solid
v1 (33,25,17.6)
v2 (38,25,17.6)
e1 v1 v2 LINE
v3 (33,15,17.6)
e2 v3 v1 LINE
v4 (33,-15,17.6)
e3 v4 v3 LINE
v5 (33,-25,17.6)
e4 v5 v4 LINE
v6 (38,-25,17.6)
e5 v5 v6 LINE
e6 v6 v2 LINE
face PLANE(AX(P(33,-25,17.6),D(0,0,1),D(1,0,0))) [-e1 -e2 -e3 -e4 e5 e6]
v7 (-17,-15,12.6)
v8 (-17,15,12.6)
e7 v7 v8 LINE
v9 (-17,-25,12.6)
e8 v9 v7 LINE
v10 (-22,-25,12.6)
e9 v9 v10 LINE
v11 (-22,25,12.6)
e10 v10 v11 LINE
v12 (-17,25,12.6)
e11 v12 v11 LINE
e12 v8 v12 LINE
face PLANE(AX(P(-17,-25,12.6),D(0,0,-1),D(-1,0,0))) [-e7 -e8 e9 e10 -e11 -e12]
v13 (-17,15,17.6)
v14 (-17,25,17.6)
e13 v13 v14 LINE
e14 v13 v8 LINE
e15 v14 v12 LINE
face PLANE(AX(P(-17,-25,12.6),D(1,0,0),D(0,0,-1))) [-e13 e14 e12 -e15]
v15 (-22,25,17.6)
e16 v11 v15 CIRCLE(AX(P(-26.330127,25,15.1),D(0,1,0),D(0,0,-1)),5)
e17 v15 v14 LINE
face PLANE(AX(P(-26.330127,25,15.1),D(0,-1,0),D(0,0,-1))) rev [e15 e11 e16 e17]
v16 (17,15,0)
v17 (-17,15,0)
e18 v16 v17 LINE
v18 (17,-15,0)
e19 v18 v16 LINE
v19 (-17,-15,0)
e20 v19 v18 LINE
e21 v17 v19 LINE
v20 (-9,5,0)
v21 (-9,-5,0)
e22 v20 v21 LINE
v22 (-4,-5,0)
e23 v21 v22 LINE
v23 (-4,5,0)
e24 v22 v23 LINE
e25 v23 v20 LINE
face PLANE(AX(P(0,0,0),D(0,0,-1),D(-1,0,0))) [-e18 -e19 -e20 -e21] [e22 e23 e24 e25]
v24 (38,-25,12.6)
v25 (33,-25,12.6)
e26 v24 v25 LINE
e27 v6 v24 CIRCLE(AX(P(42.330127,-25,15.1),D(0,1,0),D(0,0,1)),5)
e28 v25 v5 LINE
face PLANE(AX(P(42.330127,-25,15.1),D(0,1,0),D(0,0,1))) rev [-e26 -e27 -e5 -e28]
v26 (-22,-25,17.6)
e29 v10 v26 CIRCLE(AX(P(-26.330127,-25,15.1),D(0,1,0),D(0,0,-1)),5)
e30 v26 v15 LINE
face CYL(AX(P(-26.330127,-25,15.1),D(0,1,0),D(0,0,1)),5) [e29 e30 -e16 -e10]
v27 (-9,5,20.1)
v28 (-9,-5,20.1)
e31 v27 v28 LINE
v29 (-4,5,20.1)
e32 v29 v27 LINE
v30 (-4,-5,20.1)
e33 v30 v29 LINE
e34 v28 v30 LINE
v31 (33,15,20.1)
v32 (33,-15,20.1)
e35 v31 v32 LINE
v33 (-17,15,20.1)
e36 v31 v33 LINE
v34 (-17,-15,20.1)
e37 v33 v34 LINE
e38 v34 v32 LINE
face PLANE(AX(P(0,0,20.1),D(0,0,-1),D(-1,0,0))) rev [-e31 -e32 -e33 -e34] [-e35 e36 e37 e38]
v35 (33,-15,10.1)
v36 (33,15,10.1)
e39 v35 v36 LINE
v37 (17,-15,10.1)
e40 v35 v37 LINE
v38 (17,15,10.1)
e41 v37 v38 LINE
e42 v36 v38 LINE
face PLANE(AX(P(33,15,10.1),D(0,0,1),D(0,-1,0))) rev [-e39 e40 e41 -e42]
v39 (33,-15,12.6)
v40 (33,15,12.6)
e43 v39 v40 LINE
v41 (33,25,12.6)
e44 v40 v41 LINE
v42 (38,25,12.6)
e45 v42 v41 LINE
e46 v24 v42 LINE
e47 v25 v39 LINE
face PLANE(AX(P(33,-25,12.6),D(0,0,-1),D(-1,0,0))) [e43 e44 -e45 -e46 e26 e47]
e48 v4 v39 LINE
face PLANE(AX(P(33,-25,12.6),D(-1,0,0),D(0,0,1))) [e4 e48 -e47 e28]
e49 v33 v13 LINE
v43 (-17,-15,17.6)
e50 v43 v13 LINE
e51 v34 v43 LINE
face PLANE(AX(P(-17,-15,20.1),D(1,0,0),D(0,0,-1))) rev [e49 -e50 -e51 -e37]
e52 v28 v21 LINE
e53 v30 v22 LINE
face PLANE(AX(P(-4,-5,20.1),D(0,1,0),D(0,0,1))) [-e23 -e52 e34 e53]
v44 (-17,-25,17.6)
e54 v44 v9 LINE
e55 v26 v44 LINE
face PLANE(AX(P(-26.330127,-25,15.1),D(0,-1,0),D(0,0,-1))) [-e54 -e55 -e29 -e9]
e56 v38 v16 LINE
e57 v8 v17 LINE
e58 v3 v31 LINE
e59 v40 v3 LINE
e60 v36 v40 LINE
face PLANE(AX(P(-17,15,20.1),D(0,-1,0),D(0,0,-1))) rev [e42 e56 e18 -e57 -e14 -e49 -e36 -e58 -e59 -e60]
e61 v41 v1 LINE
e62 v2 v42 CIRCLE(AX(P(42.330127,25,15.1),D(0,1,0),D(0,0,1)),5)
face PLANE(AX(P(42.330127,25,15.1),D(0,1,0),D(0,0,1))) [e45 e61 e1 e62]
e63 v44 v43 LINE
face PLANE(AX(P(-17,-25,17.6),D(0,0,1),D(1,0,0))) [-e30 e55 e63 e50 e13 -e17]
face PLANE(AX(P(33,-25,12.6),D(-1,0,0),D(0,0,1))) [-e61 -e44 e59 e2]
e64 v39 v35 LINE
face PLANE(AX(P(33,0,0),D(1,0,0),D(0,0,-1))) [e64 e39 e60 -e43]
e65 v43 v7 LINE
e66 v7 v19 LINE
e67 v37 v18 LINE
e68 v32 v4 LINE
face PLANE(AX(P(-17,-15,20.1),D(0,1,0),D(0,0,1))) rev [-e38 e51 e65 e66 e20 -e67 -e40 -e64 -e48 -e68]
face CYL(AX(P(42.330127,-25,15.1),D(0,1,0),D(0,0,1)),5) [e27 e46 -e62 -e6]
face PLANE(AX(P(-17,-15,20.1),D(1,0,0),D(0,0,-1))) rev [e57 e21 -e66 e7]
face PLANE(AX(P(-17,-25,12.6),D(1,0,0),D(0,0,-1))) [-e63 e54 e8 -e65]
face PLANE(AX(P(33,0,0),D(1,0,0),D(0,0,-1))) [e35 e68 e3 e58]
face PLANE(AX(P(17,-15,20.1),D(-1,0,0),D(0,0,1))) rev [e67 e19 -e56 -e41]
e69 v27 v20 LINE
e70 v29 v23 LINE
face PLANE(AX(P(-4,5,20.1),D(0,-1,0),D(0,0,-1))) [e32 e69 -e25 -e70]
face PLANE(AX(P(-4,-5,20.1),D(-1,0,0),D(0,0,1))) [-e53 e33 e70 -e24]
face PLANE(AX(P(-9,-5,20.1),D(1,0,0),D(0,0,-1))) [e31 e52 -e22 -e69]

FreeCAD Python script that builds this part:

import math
import FreeCAD as App
import Part
import Sketcher

V = App.Vector
Q = App.Units.Quantity


def add_polygon(sketch, points):
    """Adds a closed chain of lines whose ends are joined by coincident constraints."""
    first, n = sketch.GeometryCount, len(points)
    for a, b in zip(points, points[1:] + points[:1]):
        sketch.addGeometry(Part.LineSegment(App.Vector(*a, 0), App.Vector(*b, 0)), False)
    for i in range(n):
        sketch.addConstraint(Sketcher.Constraint("Coincident", first + i, 2, first + (i + 1) % n, 1))

doc = App.newDocument("Part")
body = doc.addObject("PartDesign::Body", "Body")

# Sketch on XY plane
sketch1 = body.newObject("Sketcher::SketchObject", "Sketch")
sketch1.AttachmentSupport = (doc.getObject("XY_Plane"), [""])
sketch1.MapMode = "FlatFace"
add_polygon(sketch1, [(-17, 15), (-17, -15), (17, -15), (17, 15)])  # lines 0-3
add_polygon(sketch1, [(-4, -5), (-9, -5), (-9, 5), (-4, 5)])  # lines 4-7
sketch1.addConstraint(Sketcher.Constraint("Vertical", 0))
sketch1.addConstraint(Sketcher.Constraint("Horizontal", 1))
sketch1.addConstraint(Sketcher.Constraint("Vertical", 2))
sketch1.addConstraint(Sketcher.Constraint("Horizontal", 3))
sketch1.addConstraint(Sketcher.Constraint("Horizontal", 4))
sketch1.addConstraint(Sketcher.Constraint("Vertical", 5))
sketch1.addConstraint(Sketcher.Constraint("Horizontal", 6))
sketch1.addConstraint(Sketcher.Constraint("Vertical", 7))
sketch1.addConstraint(Sketcher.Constraint("Symmetric", 0, 2, 2, 2, -1, 1))
sketch1.addConstraint(Sketcher.Constraint("DistanceX", 1, 1, 1, 2, Q("34 mm")))
sketch1.addConstraint(Sketcher.Constraint("DistanceX", 4, 2, 4, 1, Q("5 mm")))
sketch1.addConstraint(Sketcher.Constraint("DistanceY", 0, 2, 0, 1, Q("30 mm")))
sketch1.addConstraint(Sketcher.Constraint("DistanceY", 5, 1, 5, 2, Q("10 mm")))
sketch1.addConstraint(Sketcher.Constraint("DistanceX", 4, 2, -1, 1, Q("9 mm")))
sketch1.addConstraint(Sketcher.Constraint("DistanceY", 4, 2, -1, 1, Q("5 mm")))
pad1 = body.newObject("PartDesign::Pad", "Pad")
pad1.Profile = sketch1
pad1.Length = 20.1

# Sketch on YZ plane
sketch2 = body.newObject("Sketcher::SketchObject", "Sketch001")
sketch2.AttachmentSupport = (doc.getObject("YZ_Plane"), [""])
sketch2.MapMode = "FlatFace"
sketch2.AttachmentOffset = App.Placement(V(0, 0, 17), App.Rotation())
add_polygon(sketch2, [(15, 20), (-15, 20), (-15, 10), (15, 10)])  # lines 0-3
sketch2.addConstraint(Sketcher.Constraint("Horizontal", 0))
sketch2.addConstraint(Sketcher.Constraint("Vertical", 1))
sketch2.addConstraint(Sketcher.Constraint("Horizontal", 2))
sketch2.addConstraint(Sketcher.Constraint("Vertical", 3))
sketch2.addConstraint(Sketcher.Constraint("DistanceX", 0, 2, 0, 1, Q("30 mm")))
sketch2.addConstraint(Sketcher.Constraint("DistanceY", 1, 2, 1, 1, Q("10 mm")))
sketch2.addConstraint(Sketcher.Constraint("DistanceX", 0, 2, -1, 1, Q("15 mm")))
sketch2.addConstraint(Sketcher.Constraint("DistanceY", -1, 1, 0, 2, Q("20.1 mm")))
pad2 = body.newObject("PartDesign::Pad", "Pad001")
pad2.Profile = sketch2
pad2.Length = 16

# Sketch on XZ plane
sketch3 = body.newObject("Sketcher::SketchObject", "Sketch002")
sketch3.AttachmentSupport = (doc.getObject("XZ_Plane"), [""])
sketch3.MapMode = "FlatFace"
sketch3.AttachmentOffset = App.Placement(V(0, 0, -25), App.Rotation())
sketch3.addGeometry(Part.LineSegment(V(38, 13, 0), V(33, 13, 0)), False)
sketch3.addGeometry(Part.LineSegment(V(33, 13, 0), V(33, 18, 0)), False)
sketch3.addGeometry(Part.LineSegment(V(33, 18, 0), V(38, 18, 0)), False)
sketch3.addGeometry(Part.ArcOfCircle(Part.Circle(V(42, 15, 0), V(0, 0, 1), 5), math.radians(-150), math.radians(150)), False)
sketch3.addGeometry(Part.LineSegment(V(-17, 18, 0), V(-17, 13, 0)), False)
sketch3.addGeometry(Part.LineSegment(V(-17, 13, 0), V(-22, 13, 0)), False)
sketch3.addGeometry(Part.ArcOfCircle(Part.Circle(V(-26, 15, 0), V(0, 0, 1), 5), math.radians(30), math.radians(330)), False)
sketch3.addGeometry(Part.LineSegment(V(-22, 18, 0), V(-17, 18, 0)), False)
sketch3.addConstraint(Sketcher.Constraint("Coincident", 0, 2, 1, 1))
sketch3.addConstraint(Sketcher.Constraint("Coincident", 1, 2, 2, 1))
sketch3.addConstraint(Sketcher.Constraint("Coincident", 2, 2, 3, 2))
sketch3.addConstraint(Sketcher.Constraint("Coincident", 3, 1, 0, 1))
sketch3.addConstraint(Sketcher.Constraint("Coincident", 4, 2, 5, 1))
sketch3.addConstraint(Sketcher.Constraint("Coincident", 5, 2, 6, 2))
sketch3.addConstraint(Sketcher.Constraint("Coincident", 6, 1, 7, 1))
sketch3.addConstraint(Sketcher.Constraint("Coincident", 7, 2, 4, 1))
sketch3.addConstraint(Sketcher.Constraint("Horizontal", 0))
sketch3.addConstraint(Sketcher.Constraint("Vertical", 1))
sketch3.addConstraint(Sketcher.Constraint("Horizontal", 2))
sketch3.addConstraint(Sketcher.Constraint("Vertical", 4))
sketch3.addConstraint(Sketcher.Constraint("Horizontal", 5))
sketch3.addConstraint(Sketcher.Constraint("Horizontal", 7))
sketch3.addConstraint(Sketcher.Constraint("Equal", 3, 6))
sketch3.addConstraint(Sketcher.Constraint("Horizontal", 3, 3, 6, 3))
sketch3.addConstraint(Sketcher.Constraint("Horizontal", 3, 1, 4, 2))
sketch3.addConstraint(Sketcher.Constraint("Horizontal", 2, 2, 6, 1))
sketch3.addConstraint(Sketcher.Constraint("Vertical", 2, 2, 3, 1))
sketch3.addConstraint(Sketcher.Constraint("Equal", 2, 5))
sketch3.addConstraint(Sketcher.Constraint("Equal", 7, 1))
sketch3.addConstraint(Sketcher.Constraint("Radius", 3, Q("5 mm")))
sketch3.addConstraint(Sketcher.Constraint("DistanceX", 0, 2, 0, 1, Q("5 mm")))
sketch3.addConstraint(Sketcher.Constraint("DistanceX", -1, 1, 0, 2, Q("33 mm")))
sketch3.addConstraint(Sketcher.Constraint("DistanceX", 4, 2, -1, 1, Q("17 mm")))
sketch3.addConstraint(Sketcher.Constraint("DistanceY", -1, 1, 3, 3, Q("15.1 mm")))
pad3 = body.newObject("PartDesign::Pad", "Pad002")
pad3.Profile = sketch3
pad3.Length = 50

doc.recompute()
